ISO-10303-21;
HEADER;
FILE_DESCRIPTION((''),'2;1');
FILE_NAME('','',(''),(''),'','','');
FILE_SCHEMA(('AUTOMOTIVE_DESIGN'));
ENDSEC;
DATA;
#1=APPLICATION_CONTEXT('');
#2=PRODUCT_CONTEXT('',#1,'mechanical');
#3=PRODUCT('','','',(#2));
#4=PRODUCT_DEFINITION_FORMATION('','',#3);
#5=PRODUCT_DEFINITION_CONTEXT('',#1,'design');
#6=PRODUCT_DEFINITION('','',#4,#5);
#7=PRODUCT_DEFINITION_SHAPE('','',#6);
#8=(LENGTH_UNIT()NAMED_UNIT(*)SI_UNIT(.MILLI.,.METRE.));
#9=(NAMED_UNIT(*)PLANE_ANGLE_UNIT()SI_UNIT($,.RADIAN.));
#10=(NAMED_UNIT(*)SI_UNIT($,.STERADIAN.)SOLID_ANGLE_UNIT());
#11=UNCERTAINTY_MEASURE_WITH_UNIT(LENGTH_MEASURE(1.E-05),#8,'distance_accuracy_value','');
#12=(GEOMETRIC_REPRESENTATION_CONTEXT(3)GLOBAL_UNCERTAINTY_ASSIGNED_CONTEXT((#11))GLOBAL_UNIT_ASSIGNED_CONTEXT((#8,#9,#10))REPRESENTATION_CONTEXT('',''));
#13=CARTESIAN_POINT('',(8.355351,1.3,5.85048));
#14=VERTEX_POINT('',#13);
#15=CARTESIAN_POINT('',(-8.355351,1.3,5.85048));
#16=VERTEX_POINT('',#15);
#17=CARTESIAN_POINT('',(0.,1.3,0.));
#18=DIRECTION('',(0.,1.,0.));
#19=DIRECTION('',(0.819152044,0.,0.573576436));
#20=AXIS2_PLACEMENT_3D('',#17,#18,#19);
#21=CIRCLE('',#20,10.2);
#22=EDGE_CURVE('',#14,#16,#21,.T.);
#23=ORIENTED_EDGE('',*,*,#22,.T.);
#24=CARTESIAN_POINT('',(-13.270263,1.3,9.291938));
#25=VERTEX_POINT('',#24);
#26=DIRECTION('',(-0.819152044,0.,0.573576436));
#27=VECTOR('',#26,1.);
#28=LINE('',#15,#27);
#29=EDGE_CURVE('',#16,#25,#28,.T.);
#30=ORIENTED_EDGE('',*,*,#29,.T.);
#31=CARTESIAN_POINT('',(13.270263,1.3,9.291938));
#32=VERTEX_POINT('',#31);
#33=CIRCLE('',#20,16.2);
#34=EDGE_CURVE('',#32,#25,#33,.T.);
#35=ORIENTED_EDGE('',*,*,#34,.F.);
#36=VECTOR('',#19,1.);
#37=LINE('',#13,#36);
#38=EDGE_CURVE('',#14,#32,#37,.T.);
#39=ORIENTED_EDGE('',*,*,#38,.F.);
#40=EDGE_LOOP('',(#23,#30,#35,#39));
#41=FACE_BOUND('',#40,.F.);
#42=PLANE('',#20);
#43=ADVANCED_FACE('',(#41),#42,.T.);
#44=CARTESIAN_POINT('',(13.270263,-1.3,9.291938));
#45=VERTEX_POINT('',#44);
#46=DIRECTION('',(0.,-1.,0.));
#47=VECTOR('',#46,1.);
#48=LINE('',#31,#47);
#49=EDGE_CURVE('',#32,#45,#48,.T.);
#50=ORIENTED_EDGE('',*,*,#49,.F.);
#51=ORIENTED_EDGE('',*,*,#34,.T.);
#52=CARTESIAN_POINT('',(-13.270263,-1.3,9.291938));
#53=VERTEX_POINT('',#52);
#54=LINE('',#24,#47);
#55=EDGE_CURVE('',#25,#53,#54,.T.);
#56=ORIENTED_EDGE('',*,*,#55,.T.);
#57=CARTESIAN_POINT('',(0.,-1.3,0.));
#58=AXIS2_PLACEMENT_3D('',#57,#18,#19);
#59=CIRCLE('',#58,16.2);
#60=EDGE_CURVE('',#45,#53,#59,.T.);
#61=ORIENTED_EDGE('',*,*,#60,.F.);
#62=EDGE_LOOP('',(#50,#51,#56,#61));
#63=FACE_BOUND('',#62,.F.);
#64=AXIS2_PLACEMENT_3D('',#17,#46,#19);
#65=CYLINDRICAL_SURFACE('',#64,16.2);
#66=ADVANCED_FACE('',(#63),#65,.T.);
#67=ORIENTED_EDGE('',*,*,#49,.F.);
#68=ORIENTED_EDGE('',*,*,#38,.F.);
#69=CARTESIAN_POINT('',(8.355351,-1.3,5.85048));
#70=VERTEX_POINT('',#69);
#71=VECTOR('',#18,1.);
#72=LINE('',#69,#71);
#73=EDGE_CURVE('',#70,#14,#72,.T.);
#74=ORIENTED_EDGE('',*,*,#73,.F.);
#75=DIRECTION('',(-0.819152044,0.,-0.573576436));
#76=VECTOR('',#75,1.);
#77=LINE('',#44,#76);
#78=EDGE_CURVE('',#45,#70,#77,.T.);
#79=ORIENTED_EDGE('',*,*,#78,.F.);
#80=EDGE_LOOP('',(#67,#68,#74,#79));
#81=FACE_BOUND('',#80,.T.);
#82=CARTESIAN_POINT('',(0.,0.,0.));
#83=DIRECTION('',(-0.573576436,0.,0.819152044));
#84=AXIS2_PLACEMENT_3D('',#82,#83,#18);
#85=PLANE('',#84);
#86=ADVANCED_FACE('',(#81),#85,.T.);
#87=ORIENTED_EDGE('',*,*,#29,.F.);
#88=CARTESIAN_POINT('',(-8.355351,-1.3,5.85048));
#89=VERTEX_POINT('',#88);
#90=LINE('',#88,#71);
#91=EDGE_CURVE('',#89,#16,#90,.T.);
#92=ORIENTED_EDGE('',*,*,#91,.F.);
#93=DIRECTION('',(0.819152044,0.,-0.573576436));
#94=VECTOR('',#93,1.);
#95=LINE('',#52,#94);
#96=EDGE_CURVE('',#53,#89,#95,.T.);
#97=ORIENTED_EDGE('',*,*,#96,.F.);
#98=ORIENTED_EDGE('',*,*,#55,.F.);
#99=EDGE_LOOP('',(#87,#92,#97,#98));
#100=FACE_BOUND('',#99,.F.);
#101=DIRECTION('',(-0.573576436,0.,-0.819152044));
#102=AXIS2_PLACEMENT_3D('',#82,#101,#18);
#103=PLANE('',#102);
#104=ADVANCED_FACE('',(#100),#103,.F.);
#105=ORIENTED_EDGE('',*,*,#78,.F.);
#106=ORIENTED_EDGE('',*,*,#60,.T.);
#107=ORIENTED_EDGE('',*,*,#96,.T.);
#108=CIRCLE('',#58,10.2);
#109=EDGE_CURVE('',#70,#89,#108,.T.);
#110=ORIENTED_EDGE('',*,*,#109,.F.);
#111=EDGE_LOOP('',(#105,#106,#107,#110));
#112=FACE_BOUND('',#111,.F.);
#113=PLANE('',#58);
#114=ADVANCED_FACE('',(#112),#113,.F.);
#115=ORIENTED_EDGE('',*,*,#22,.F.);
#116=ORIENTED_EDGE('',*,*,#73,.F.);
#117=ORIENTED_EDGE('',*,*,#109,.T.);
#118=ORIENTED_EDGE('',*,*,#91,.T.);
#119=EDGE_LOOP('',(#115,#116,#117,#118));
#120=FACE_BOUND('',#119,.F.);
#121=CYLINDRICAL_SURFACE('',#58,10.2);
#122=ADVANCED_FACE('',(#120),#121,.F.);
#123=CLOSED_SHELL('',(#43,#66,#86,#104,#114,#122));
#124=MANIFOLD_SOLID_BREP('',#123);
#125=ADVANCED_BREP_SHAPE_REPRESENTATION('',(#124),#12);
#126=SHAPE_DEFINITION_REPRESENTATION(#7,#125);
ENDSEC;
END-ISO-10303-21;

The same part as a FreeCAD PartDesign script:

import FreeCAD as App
import Part
import Sketcher

V = App.Vector


def add_polygon(sketch, points):
    """Adds a closed chain of lines whose ends are joined by coincident constraints."""
    first, n = sketch.GeometryCount, len(points)
    for a, b in zip(points, points[1:] + points[:1]):
        sketch.addGeometry(Part.LineSegment(App.Vector(*a, 0), App.Vector(*b, 0)), False)
    for i in range(n):
        sketch.addConstraint(Sketcher.Constraint("Coincident", first + i, 2, first + (i + 1) % n, 1))

doc = App.newDocument("Part")
body = doc.addObject("PartDesign::Body", "Body")

# Sketch on YZ plane
sketch1 = doc.addObject("Sketcher::SketchObject", "Sketch")
body.addObject(sketch1)
sketch1.AttachmentSupport = (doc.YZ_Plane, [""])
sketch1.MapMode = "FlatFace"
add_polygon(sketch1, [(1.3, -10.2), (-1.3, -10.2), (-1.3, -16.2), (1.3, -16.2)])  # lines 0-3
sketch1.addConstraint(Sketcher.Constraint("Horizontal", 0))
sketch1.addConstraint(Sketcher.Constraint("Vertical", 1))
sketch1.addConstraint(Sketcher.Constraint("Horizontal", 2))
sketch1.addConstraint(Sketcher.Constraint("Vertical", 3))
sketch1.addConstraint(Sketcher.Constraint("DistanceY", 1, 2, 1, 1, 6.0))
sketch1.addConstraint(Sketcher.Constraint("DistanceX", 0, 2, 0, 1, 2.6))
sketch1.addConstraint(Sketcher.Constraint("DistanceY", 0, 2, -1, 1, 10.2))
sketch1.addConstraint(Sketcher.Constraint("DistanceX", 0, 2, -1, 1, 1.3))
revolution = doc.addObject("PartDesign::Revolution", "Revolution")
body.addObject(revolution)
revolution.Profile = sketch1
revolution.ReferenceAxis = (sketch1, ["H_Axis"])
revolution.Angle = 250
revolution.Midplane = True

doc.recompute()
